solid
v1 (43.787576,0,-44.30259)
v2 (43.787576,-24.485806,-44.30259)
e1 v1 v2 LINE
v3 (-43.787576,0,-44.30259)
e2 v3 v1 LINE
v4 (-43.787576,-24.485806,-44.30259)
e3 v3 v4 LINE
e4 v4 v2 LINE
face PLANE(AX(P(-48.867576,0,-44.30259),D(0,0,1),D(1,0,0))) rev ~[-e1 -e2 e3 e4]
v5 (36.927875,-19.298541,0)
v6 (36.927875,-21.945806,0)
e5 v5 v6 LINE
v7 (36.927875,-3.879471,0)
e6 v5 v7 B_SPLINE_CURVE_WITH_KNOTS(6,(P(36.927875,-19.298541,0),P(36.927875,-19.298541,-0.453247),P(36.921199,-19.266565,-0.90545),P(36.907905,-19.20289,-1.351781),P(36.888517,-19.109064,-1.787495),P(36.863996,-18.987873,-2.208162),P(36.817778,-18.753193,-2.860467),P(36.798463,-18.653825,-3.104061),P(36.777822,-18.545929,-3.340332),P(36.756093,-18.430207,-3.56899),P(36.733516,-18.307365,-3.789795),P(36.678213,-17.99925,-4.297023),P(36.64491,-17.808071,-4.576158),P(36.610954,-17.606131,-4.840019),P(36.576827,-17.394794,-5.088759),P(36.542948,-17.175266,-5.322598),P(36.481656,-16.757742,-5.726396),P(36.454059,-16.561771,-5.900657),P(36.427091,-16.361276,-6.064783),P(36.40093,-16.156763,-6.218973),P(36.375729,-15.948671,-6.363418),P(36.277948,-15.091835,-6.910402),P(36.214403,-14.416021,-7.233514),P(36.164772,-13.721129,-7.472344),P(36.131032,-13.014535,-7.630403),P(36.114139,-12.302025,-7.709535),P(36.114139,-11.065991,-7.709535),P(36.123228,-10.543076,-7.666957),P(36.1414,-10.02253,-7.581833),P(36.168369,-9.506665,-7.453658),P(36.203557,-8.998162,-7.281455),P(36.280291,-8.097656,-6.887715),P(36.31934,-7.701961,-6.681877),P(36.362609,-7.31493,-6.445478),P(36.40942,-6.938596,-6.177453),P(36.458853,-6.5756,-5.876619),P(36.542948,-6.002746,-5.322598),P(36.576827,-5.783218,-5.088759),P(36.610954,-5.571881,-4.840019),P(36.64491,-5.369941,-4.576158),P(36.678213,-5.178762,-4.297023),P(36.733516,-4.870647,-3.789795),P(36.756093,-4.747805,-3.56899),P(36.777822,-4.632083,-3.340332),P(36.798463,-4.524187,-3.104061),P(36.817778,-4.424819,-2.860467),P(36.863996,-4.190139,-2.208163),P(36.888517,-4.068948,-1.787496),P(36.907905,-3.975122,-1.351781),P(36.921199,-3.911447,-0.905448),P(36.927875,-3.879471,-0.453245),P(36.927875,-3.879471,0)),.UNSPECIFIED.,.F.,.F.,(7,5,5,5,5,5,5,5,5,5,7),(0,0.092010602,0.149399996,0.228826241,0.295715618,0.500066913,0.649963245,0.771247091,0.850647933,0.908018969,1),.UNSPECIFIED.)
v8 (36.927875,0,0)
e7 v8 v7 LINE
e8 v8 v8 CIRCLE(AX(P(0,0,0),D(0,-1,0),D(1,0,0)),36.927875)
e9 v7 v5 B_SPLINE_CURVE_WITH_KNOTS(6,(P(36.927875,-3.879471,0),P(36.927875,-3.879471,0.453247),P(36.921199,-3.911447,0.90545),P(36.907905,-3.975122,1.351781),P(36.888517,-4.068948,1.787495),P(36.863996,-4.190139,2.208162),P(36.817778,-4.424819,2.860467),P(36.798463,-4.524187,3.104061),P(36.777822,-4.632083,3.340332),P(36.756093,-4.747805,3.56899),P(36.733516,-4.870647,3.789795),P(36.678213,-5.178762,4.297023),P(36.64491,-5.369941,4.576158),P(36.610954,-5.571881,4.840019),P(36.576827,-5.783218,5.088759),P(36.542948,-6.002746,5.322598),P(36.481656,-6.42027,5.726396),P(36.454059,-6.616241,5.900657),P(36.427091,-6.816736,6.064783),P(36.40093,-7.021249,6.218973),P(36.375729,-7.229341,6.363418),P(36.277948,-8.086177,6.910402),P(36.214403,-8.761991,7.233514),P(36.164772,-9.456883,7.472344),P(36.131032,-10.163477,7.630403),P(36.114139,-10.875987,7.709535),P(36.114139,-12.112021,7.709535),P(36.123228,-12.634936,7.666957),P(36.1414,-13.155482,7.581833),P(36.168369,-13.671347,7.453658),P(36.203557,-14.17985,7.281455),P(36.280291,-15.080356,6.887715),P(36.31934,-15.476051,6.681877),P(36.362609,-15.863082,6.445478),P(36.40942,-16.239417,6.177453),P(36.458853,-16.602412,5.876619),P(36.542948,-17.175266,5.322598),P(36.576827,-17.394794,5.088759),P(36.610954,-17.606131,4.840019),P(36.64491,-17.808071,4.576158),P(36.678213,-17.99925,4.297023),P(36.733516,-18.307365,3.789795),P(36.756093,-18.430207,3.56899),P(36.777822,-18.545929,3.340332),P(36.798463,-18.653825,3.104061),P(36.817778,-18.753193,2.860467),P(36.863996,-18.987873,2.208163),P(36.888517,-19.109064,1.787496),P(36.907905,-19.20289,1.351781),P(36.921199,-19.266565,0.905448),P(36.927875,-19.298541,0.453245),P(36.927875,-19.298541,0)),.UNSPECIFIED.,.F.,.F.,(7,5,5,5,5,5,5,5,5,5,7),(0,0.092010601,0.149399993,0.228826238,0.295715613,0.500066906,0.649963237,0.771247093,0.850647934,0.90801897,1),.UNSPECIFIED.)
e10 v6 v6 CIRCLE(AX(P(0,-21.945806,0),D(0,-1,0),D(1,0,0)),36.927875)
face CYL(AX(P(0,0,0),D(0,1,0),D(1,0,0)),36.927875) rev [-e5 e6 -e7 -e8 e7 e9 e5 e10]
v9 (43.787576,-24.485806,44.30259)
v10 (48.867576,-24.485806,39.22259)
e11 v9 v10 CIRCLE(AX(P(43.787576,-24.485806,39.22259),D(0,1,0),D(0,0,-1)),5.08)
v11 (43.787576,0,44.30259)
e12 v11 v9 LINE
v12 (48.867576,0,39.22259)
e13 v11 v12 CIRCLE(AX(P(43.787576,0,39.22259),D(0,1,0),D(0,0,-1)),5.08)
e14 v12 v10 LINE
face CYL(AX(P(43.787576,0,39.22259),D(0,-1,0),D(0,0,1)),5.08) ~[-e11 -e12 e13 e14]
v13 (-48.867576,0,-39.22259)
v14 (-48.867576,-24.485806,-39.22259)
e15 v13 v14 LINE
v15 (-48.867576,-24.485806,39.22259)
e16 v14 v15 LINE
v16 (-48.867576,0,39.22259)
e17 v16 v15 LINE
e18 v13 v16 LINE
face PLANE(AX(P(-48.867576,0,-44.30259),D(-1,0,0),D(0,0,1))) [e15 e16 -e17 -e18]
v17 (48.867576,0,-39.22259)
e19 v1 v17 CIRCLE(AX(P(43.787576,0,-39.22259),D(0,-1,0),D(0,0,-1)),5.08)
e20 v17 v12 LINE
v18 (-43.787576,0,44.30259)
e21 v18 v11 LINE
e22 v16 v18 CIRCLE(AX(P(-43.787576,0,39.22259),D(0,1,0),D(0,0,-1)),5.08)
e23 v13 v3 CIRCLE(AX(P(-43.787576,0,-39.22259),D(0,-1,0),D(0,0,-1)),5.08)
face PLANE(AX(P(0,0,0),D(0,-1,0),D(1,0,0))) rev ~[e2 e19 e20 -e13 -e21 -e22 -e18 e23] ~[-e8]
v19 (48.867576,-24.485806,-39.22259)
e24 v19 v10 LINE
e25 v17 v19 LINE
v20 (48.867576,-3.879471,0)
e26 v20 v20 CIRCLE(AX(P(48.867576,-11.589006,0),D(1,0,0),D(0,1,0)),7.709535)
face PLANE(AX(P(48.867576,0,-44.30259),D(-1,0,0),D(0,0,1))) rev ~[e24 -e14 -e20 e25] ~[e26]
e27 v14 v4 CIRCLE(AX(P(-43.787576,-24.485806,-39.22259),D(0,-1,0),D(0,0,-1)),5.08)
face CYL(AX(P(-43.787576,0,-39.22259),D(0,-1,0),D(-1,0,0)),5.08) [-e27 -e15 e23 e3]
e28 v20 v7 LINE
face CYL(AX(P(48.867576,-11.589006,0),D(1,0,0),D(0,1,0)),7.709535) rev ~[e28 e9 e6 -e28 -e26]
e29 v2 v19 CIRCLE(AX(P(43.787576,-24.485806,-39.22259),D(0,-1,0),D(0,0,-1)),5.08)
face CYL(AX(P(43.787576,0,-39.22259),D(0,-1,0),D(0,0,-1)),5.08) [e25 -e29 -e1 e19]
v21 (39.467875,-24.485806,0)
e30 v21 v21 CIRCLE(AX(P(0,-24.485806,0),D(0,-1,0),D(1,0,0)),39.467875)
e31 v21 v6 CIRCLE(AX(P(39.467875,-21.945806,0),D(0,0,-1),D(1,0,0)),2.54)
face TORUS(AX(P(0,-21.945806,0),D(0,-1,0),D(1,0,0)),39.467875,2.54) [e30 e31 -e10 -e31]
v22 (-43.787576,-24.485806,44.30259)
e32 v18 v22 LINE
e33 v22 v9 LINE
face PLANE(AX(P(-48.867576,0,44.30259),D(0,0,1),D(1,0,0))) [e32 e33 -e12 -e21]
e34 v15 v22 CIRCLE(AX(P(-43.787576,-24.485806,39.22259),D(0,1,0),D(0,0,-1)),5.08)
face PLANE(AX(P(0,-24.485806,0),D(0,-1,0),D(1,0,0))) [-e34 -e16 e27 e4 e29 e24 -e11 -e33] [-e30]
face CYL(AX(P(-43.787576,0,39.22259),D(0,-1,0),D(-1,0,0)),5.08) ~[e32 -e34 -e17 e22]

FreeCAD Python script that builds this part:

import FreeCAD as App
import Part
import Sketcher

V = App.Vector
Q = App.Units.Quantity


def edges_at(feature, points):
    """Names of the edges that pass closest to the given points."""
    edges = feature.Shape.Edges
    near = lambda p: min(range(len(edges)), key=lambda i: edges[i].distToShape(Part.Vertex(*p))[0])
    return sorted({f"Edge{near(p) + 1}" for p in points})


def add_polygon(sketch, points):
    """Adds a closed chain of lines whose ends are joined by coincident constraints."""
    first, n = sketch.GeometryCount, len(points)
    for a, b in zip(points, points[1:] + points[:1]):
        sketch.addGeometry(Part.LineSegment(App.Vector(*a, 0), App.Vector(*b, 0)), False)
    for i in range(n):
        sketch.addConstraint(Sketcher.Constraint("Coincident", first + i, 2, first + (i + 1) % n, 1))

doc = App.newDocument("Part")
body = doc.addObject("PartDesign::Body", "Body")

# Sketch on XZ plane
sketch1 = doc.addObject("Sketcher::SketchObject", "Sketch")
body.addObject(sketch1)
sketch1.AttachmentSupport = (doc.XZ_Plane, [""])
sketch1.MapMode = "FlatFace"
add_polygon(sketch1, [(-49, 44), (-49, -44), (49, -44), (49, 44)])  # lines 0-3
sketch1.addGeometry(Part.Circle(V(0, 0, 0), V(0, 0, 1), 37), False)  # 4
sketch1.addConstraint(Sketcher.Constraint("Vertical", 0))
sketch1.addConstraint(Sketcher.Constraint("Horizontal", 1))
sketch1.addConstraint(Sketcher.Constraint("Vertical", 2))
sketch1.addConstraint(Sketcher.Constraint("Horizontal", 3))
sketch1.addConstraint(Sketcher.Constraint("Coincident", 4, 3, -1, 1))
sketch1.addConstraint(Sketcher.Constraint("Symmetric", 0, 2, 2, 2, -1, 1))
sketch1.addConstraint(Sketcher.Constraint("Diameter", 4, Q("73.85575 mm")))
sketch1.addConstraint(Sketcher.Constraint("DistanceX", 1, 1, 1, 2, Q("97.735152 mm")))
sketch1.addConstraint(Sketcher.Constraint("DistanceY", 0, 2, 0, 1, Q("88.60518 mm")))
pad1 = doc.addObject("PartDesign::Pad", "Pad")
body.addObject(pad1)
pad1.Profile = sketch1
pad1.Length = 24.485806
doc.recompute()

fillet = doc.addObject("PartDesign::Fillet", "Fillet")
body.addObject(fillet)
fillet.Base = (pad1, edges_at(pad1, [
    (48.868, -12.243, 44.303),
    (48.868, -12.243, -44.303),
    (-48.868, -12.243, 44.303),
    (-48.868, -12.243, -44.303),
]))
fillet.Radius = Q("0.2 in")

# Sketch on YZ plane
sketch2 = doc.addObject("Sketcher::SketchObject", "Sketch001")
body.addObject(sketch2)
sketch2.AttachmentSupport = (doc.YZ_Plane, [""])
sketch2.MapMode = "FlatFace"
sketch2.AttachmentOffset = App.Placement(V(0, 0, 48.867576), App.Rotation())
sketch2.addGeometry(Part.Circle(V(-12, 0, 0), V(0, 0, 1), 8), False)
sketch2.addConstraint(Sketcher.Constraint("PointOnObject", 0, 3, -1))
sketch2.addConstraint(Sketcher.Constraint("Diameter", 0, Q("15.41907 mm")))
sketch2.addConstraint(Sketcher.Constraint("DistanceX", 0, 3, -1, 1, Q("11.589006 mm")))
pocket1 = doc.addObject("PartDesign::Pocket", "Pocket")
body.addObject(pocket1)
pocket1.Profile = sketch2
pocket1.Length = Q("1 in")
doc.recompute()

fillet2 = doc.addObject("PartDesign::Fillet", "Fillet001")
body.addObject(fillet2)
fillet2.Base = (pocket1, edges_at(pocket1, [(-36.928, -24.486, 0)]))
fillet2.Radius = Q("0.1 in")

doc.recompute()
